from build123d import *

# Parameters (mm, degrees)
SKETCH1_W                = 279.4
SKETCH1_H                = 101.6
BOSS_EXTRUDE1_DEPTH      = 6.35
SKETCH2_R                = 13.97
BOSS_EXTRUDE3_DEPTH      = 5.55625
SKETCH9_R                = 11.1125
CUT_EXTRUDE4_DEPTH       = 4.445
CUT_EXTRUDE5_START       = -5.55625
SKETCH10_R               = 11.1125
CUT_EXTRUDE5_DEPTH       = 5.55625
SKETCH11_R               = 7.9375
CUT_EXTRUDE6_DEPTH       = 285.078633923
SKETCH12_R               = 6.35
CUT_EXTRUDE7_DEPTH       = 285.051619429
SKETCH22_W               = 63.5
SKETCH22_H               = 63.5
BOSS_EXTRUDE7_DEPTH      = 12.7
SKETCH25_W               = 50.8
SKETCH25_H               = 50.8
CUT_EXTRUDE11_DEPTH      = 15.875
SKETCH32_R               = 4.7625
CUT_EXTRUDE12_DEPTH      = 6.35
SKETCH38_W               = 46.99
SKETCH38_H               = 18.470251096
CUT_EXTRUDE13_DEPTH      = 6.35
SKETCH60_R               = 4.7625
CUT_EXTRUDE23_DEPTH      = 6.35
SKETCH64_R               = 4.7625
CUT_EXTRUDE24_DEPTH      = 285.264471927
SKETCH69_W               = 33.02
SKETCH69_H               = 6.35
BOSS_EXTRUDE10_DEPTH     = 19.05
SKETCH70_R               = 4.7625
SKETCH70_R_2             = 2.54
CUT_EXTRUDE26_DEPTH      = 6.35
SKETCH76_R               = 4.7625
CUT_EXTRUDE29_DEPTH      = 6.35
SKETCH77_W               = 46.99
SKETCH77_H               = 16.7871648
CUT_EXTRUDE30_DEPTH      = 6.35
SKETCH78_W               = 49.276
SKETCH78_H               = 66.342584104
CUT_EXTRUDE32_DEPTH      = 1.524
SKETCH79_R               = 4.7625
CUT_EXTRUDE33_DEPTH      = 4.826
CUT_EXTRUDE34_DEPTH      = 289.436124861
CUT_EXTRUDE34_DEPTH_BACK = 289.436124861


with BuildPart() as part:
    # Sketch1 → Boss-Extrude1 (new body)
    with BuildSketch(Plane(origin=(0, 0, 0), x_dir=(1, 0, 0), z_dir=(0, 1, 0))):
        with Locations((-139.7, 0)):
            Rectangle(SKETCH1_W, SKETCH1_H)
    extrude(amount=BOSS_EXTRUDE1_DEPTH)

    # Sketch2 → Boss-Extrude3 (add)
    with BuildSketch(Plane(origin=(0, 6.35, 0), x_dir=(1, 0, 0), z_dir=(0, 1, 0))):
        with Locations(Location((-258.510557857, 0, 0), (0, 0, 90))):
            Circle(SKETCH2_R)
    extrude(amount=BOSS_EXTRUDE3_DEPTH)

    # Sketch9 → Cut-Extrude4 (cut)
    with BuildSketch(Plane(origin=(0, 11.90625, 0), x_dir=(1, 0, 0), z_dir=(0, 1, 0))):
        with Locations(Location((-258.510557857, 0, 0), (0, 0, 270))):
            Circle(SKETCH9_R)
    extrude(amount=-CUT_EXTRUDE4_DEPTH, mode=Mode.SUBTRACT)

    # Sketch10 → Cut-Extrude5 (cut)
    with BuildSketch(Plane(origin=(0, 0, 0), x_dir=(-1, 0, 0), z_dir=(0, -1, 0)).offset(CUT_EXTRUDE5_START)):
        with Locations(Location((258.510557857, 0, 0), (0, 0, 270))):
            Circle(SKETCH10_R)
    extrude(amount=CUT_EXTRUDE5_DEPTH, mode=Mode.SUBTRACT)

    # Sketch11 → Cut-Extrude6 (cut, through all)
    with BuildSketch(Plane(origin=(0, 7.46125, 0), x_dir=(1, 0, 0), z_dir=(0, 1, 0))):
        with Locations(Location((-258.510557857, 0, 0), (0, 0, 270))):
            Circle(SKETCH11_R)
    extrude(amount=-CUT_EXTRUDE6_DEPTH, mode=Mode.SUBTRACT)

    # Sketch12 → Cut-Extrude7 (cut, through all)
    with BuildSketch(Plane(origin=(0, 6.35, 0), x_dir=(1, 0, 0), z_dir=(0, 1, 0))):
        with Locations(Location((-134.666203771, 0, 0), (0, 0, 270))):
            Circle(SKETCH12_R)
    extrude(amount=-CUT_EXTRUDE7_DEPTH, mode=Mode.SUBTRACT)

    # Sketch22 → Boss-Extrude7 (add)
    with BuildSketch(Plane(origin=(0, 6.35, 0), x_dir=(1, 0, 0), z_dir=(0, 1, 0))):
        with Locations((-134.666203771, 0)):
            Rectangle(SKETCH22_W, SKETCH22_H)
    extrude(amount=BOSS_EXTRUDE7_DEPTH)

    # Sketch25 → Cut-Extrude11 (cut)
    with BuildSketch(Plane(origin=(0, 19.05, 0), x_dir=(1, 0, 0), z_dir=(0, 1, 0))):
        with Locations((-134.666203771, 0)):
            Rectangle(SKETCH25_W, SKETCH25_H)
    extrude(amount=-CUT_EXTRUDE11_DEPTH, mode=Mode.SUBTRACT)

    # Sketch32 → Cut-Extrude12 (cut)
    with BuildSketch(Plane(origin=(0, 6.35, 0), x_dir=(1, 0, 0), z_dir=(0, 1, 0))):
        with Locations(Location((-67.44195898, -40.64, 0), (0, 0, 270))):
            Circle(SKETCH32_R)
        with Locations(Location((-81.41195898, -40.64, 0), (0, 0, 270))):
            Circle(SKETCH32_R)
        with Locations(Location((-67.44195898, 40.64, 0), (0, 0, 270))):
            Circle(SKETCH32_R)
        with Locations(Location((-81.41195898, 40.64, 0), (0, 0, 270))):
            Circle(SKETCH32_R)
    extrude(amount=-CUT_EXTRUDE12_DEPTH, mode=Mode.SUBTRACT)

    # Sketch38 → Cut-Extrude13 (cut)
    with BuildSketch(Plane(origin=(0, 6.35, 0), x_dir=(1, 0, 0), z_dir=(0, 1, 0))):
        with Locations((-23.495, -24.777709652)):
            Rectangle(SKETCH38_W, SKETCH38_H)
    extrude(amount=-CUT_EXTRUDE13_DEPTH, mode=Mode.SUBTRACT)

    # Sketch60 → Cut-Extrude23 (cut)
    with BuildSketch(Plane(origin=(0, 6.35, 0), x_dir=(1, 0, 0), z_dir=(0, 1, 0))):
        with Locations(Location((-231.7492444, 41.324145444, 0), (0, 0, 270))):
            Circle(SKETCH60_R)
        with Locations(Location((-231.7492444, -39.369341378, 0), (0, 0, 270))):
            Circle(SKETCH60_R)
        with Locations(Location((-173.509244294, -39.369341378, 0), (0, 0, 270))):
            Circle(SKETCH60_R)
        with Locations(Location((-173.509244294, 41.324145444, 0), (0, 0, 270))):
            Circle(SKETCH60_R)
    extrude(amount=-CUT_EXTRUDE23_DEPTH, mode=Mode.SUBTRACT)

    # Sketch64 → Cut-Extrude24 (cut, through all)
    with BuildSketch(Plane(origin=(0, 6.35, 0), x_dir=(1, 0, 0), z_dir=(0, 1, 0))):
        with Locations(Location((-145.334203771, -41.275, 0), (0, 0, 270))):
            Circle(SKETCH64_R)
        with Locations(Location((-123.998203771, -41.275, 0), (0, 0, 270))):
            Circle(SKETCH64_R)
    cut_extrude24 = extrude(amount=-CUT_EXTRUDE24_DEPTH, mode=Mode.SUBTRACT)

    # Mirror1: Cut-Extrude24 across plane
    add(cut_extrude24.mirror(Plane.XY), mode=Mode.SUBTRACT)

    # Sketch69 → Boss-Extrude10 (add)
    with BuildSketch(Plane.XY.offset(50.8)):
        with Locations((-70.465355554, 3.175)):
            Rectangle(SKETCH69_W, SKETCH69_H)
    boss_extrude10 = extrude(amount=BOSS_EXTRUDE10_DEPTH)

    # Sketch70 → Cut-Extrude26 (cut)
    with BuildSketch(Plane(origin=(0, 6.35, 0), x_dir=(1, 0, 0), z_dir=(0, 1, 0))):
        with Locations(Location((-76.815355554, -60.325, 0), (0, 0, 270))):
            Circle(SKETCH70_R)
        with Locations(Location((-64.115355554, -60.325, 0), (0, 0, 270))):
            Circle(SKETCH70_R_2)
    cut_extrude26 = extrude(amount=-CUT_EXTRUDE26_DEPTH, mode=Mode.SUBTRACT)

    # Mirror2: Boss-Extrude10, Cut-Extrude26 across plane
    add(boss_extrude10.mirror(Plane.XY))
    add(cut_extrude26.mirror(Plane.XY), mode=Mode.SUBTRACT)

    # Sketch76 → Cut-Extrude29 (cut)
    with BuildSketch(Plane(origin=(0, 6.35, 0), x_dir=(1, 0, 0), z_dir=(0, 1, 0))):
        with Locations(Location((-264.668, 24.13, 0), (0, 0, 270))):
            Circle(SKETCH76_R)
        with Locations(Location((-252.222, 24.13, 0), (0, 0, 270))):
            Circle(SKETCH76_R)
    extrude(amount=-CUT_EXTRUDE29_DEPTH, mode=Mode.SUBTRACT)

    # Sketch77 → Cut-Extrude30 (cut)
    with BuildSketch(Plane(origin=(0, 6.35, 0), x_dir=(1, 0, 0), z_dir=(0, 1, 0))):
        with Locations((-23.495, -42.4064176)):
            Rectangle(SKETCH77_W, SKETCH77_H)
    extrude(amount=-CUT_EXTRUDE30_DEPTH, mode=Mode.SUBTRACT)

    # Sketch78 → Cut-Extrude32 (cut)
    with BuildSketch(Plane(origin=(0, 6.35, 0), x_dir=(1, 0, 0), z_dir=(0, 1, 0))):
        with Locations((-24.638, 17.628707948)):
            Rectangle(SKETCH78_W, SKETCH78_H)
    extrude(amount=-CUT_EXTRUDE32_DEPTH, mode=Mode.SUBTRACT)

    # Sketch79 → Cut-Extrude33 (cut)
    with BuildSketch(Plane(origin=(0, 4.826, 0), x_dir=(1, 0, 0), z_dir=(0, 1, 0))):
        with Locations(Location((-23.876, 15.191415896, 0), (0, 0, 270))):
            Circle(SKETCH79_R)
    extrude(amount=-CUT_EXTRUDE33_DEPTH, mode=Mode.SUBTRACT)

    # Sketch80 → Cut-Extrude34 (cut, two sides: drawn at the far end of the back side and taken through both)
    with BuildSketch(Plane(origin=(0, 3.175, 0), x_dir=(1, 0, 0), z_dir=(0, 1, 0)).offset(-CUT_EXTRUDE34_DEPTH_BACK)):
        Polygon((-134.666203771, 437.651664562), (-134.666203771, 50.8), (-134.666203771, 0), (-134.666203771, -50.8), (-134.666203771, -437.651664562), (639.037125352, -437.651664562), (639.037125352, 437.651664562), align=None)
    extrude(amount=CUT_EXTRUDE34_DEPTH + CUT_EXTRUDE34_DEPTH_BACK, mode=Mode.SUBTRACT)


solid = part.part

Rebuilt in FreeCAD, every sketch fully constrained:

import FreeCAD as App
import Part
import Sketcher
from FreeCAD import Vector
Q = App.Units.Quantity


def add_polygon(sketch, points):
    """Adds a closed chain of lines whose ends are joined by coincident constraints."""
    first, n = sketch.GeometryCount, len(points)
    for a, b in zip(points, points[1:] + points[:1]):
        sketch.addGeometry(Part.LineSegment(App.Vector(*a, 0), App.Vector(*b, 0)), False)
    for i in range(n):
        sketch.addConstraint(Sketcher.Constraint("Coincident", first + i, 2, first + (i + 1) % n, 1))

doc = App.newDocument("Part")
params = doc.addObject("Spreadsheet::Sheet", "Params")
for row, (alias, value) in enumerate([
    ("sketch1_width", "11 in"),
    ("sketch1_height", "4 in"),
    ("pad1_length", "0.25 in"),
    ("sketch2_diameter", "1.1 in"),
    ("pad2_length", "0.21875 in"),
    ("sketch3_diameter", "0.875 in"),
    ("pocket1_length", "0.175 in"),
    ("sketch4_diameter", "0.875 in"),
    ("pocket2_length", "0.21875 in"),
    ("sketch5_diameter", "0.625 in"),
    ("sketch6_diameter", "0.5 in"),
    ("sketch7_width", "2.5 in"),
    ("pad3_length", "0.5 in"),
    ("sketch8_width", "2 in"),
    ("pocket5_length", "0.625 in"),
    ("sketch9_diameter", "0.375 in"),
    ("pocket6_length", "0.25 in"),
    ("sketch10_width", "1.85 in"),
    ("pocket7_length", "0.25 in"),
    ("sketch11_diameter", "0.375 in"),
    ("pocket8_length", "0.25 in"),
    ("sketch12_diameter", "0.375 in"),
    ("sketch13_width", "1.3 in"),
    ("sketch13_height", "0.25 in"),
    ("pad4_length", "0.75 in"),
    ("sketch14_diameter", "0.2 in"),
    ("sketch14_diameter2", "0.375 in"),
    ("pocket10_length", "0.25 in"),
    ("sketch15_diameter", "0.375 in"),
    ("pocket11_length", "0.25 in"),
    ("sketch16_width", "1.85 in"),
    ("pocket12_length", "0.25 in"),
    ("sketch17_width", "1.94 in"),
    ("pocket13_length", "0.06 in"),
    ("sketch18_diameter", "0.375 in"),
    ("pocket14_length", "0.19 in"),
], start=1):
    params.set(f"A{row}", alias)
    params.set(f"B{row}", "=" + value)
    params.setAlias(f"B{row}", alias)

body = doc.addObject("PartDesign::Body", "Body")

sketch1 = doc.addObject("Sketcher::SketchObject", "Sketch")
body.addObject(sketch1)
sketch1.AttachmentSupport = (doc.XZ_Plane, [""])
sketch1.MapMode = "FlatFace"
add_polygon(sketch1, [(-279, -51), (-279, 51), (0, 51), (0, -51)])
sketch1.addConstraint([
    Sketcher.Constraint("Vertical", 0),
    Sketcher.Constraint("Horizontal", 1),
    Sketcher.Constraint("Vertical", 2),
    Sketcher.Constraint("Horizontal", 3),
    Sketcher.Constraint("Symmetric", 1, 2, 2, 2, -1, 1),
    Sketcher.Constraint("DistanceX", 1, 1, 1, 2, Q("11 in")),
    Sketcher.Constraint("DistanceY", 0, 1, 0, 2, Q("4 in")),
])
sketch1.setExpression("Constraints[9]", "Params.sketch1_width")
sketch1.setExpression("Constraints[10]", "Params.sketch1_height")
pad1 = doc.addObject("PartDesign::Pad", "Pad")
body.addObject(pad1)
pad1.Profile = sketch1
pad1.setExpression("Length", "Params.pad1_length")
pad1.Reversed = True

sketch2 = doc.addObject("Sketcher::SketchObject", "Sketch001")
body.addObject(sketch2)
sketch2.AttachmentSupport = (doc.XZ_Plane, [""])
sketch2.MapMode = "FlatFace"
sketch2.AttachmentOffset = App.Placement(Vector(0, 0, -0.25 * 25.4), App.Rotation())
sketch2.addGeometry(Part.Circle(Vector(-259, 0, 0), Vector(0, 0, 1), 14), False)
sketch2.addConstraint([
    Sketcher.Constraint("PointOnObject", 0, 3, -1),
    Sketcher.Constraint("Diameter", 0, Q("1.1 in")),
    Sketcher.Constraint("DistanceX", 0, 3, -1, 1, 258.510558),
])
sketch2.setExpression("Constraints[1]", "Params.sketch2_diameter")
pad2 = doc.addObject("PartDesign::Pad", "Pad001")
body.addObject(pad2)
pad2.Profile = sketch2
pad2.setExpression("Length", "Params.pad2_length")
pad2.Reversed = True

sketch3 = doc.addObject("Sketcher::SketchObject", "Sketch002")
body.addObject(sketch3)
sketch3.AttachmentSupport = (doc.XZ_Plane, [""])
sketch3.MapMode = "FlatFace"
sketch3.AttachmentOffset = App.Placement(Vector(0, 0, -0.46875 * 25.4), App.Rotation())
sketch3.addGeometry(Part.Circle(Vector(-259, 0, 0), Vector(0, 0, 1), 11), False)
sketch3.addConstraint([
    Sketcher.Constraint("PointOnObject", 0, 3, -1),
    Sketcher.Constraint("Diameter", 0, Q("0.875 in")),
    Sketcher.Constraint("DistanceX", 0, 3, -1, 1, 258.510558),
])
sketch3.setExpression("Constraints[1]", "Params.sketch3_diameter")
pocket1 = doc.addObject("PartDesign::Pocket", "Pocket")
body.addObject(pocket1)
pocket1.Profile = sketch3
pocket1.setExpression("Length", "Params.pocket1_length")
pocket1.Reversed = True

sketch4 = doc.addObject("Sketcher::SketchObject", "Sketch003")
body.addObject(sketch4)
sketch4.AttachmentSupport = (doc.XZ_Plane, [""])
sketch4.MapMode = "FlatFace"
sketch4.AttachmentOffset = App.Placement(Vector(0, 0, -0.21875 * 25.4), App.Rotation())
sketch4.addGeometry(Part.Circle(Vector(-259, 0, 0), Vector(0, 0, 1), 11), False)
sketch4.addConstraint([
    Sketcher.Constraint("PointOnObject", 0, 3, -1),
    Sketcher.Constraint("Diameter", 0, Q("0.875 in")),
    Sketcher.Constraint("DistanceX", 0, 3, -1, 1, 258.510558),
])
sketch4.setExpression("Constraints[1]", "Params.sketch4_diameter")
pocket2 = doc.addObject("PartDesign::Pocket", "Pocket001")
body.addObject(pocket2)
pocket2.Profile = sketch4
pocket2.setExpression("Length", "Params.pocket2_length")
pocket2.Reversed = True

sketch5 = doc.addObject("Sketcher::SketchObject", "Sketch004")
body.addObject(sketch5)
sketch5.AttachmentSupport = (doc.XZ_Plane, [""])
sketch5.MapMode = "FlatFace"
sketch5.AttachmentOffset = App.Placement(Vector(0, 0, -7.46125), App.Rotation())
sketch5.addGeometry(Part.Circle(Vector(-259, 0, 0), Vector(0, 0, 1), 8), False)
sketch5.addConstraint([
    Sketcher.Constraint("PointOnObject", 0, 3, -1),
    Sketcher.Constraint("Diameter", 0, Q("0.625 in")),
    Sketcher.Constraint("DistanceX", 0, 3, -1, 1, 258.510558),
])
sketch5.setExpression("Constraints[1]", "Params.sketch5_diameter")
pocket3 = doc.addObject("PartDesign::Pocket", "Pocket002")
body.addObject(pocket3)
pocket3.Profile = sketch5
pocket3.Type = "ThroughAll"
pocket3.Reversed = True

sketch6 = doc.addObject("Sketcher::SketchObject", "Sketch005")
body.addObject(sketch6)
sketch6.AttachmentSupport = (doc.XZ_Plane, [""])
sketch6.MapMode = "FlatFace"
sketch6.AttachmentOffset = App.Placement(Vector(0, 0, -0.25 * 25.4), App.Rotation())
sketch6.addGeometry(Part.Circle(Vector(-135, 0, 0), Vector(0, 0, 1), 6), False)
sketch6.addConstraint([
    Sketcher.Constraint("PointOnObject", 0, 3, -1),
    Sketcher.Constraint("Diameter", 0, Q("0.5 in")),
    Sketcher.Constraint("DistanceX", 0, 3, -1, 1, 134.666204),
])
sketch6.setExpression("Constraints[1]", "Params.sketch6_diameter")
pocket4 = doc.addObject("PartDesign::Pocket", "Pocket003")
body.addObject(pocket4)
pocket4.Profile = sketch6
pocket4.Type = "ThroughAll"
pocket4.Reversed = True

sketch7 = doc.addObject("Sketcher::SketchObject", "Sketch006")
body.addObject(sketch7)
sketch7.AttachmentSupport = (doc.XZ_Plane, [""])
sketch7.MapMode = "FlatFace"
sketch7.AttachmentOffset = App.Placement(Vector(0, 0, -0.25 * 25.4), App.Rotation())
add_polygon(sketch7, [(-166, -32), (-166, 32), (-103, 32), (-103, -32)])
sketch7.addConstraint([
    Sketcher.Constraint("Vertical", 0),
    Sketcher.Constraint("Horizontal", 1),
    Sketcher.Constraint("Vertical", 2),
    Sketcher.Constraint("Horizontal", 3),
    Sketcher.Constraint("Equal", 3, 0),
    Sketcher.Constraint("DistanceX", 1, 1, 1, 2, Q("2.5 in")),
    Sketcher.Constraint("DistanceY", -1, 1, 0, 2, Q("1.25 in")),
    Sketcher.Constraint("DistanceX", 0, 2, -1, 1, 166.416204),
])
sketch7.setExpression("Constraints[9]", "Params.sketch7_width")
pad3 = doc.addObject("PartDesign::Pad", "Pad002")
body.addObject(pad3)
pad3.Profile = sketch7
pad3.setExpression("Length", "Params.pad3_length")
pad3.Reversed = True

sketch8 = doc.addObject("Sketcher::SketchObject", "Sketch007")
body.addObject(sketch8)
sketch8.AttachmentSupport = (doc.XZ_Plane, [""])
sketch8.MapMode = "FlatFace"
sketch8.AttachmentOffset = App.Placement(Vector(0, 0, -0.75 * 25.4), App.Rotation())
add_polygon(sketch8, [(-160, -25), (-160, 25), (-109, 25), (-109, -25)])
sketch8.addConstraint([
    Sketcher.Constraint("Vertical", 0),
    Sketcher.Constraint("Horizontal", 1),
    Sketcher.Constraint("Vertical", 2),
    Sketcher.Constraint("Horizontal", 3),
    Sketcher.Constraint("Equal", 3, 0),
    Sketcher.Constraint("DistanceX", 1, 1, 1, 2, Q("2 in")),
    Sketcher.Constraint("DistanceY", -1, 1, 0, 2, Q("1 in")),
    Sketcher.Constraint("DistanceX", 0, 2, -1, 1, 160.066204),
])
sketch8.setExpression("Constraints[9]", "Params.sketch8_width")
pocket5 = doc.addObject("PartDesign::Pocket", "Pocket004")
body.addObject(pocket5)
pocket5.Profile = sketch8
pocket5.setExpression("Length", "Params.pocket5_length")
pocket5.Reversed = True

sketch9 = doc.addObject("Sketcher::SketchObject", "Sketch008")
body.addObject(sketch9)
sketch9.AttachmentSupport = (doc.XZ_Plane, [""])
sketch9.MapMode = "FlatFace"
sketch9.AttachmentOffset = App.Placement(Vector(0, 0, -0.25 * 25.4), App.Rotation())
sketch9.addGeometry([
    Part.Circle(Vector(-67.4, 40.6, 0), Vector(0, 0, 1), 4.8),
    Part.Circle(Vector(-81.4, 40.6, 0), Vector(0, 0, 1), 4.8),
    Part.Circle(Vector(-67.4, -40.6, 0), Vector(0, 0, 1), 4.8),
    Part.Circle(Vector(-81.4, -40.6, 0), Vector(0, 0, 1), 4.8),
], False)
sketch9.addConstraint([
    Sketcher.Constraint("Equal", 0, 1),
    Sketcher.Constraint("Equal", 1, 2),
    Sketcher.Constraint("Equal", 2, 3),
    Sketcher.Constraint("Symmetric", 0, 3, 2, 3, -1),
    Sketcher.Constraint("Symmetric", 1, 3, 3, 3, -1),
    Sketcher.Constraint("Horizontal", 0, 3, 1, 3),
    Sketcher.Constraint("Diameter", 0, Q("0.375 in")),
    Sketcher.Constraint("DistanceY", -1, 1, 0, 3, Q("1.6 in")),
    Sketcher.Constraint("DistanceX", 1, 3, 0, 3, Q("0.55 in")),
    Sketcher.Constraint("DistanceX", 0, 3, -1, 1, 67.441959),
])
sketch9.setExpression("Constraints[6]", "Params.sketch9_diameter")
pocket6 = doc.addObject("PartDesign::Pocket", "Pocket005")
body.addObject(pocket6)
pocket6.Profile = sketch9
pocket6.setExpression("Length", "Params.pocket6_length")
pocket6.Reversed = True

sketch10 = doc.addObject("Sketcher::SketchObject", "Sketch009")
body.addObject(sketch10)
sketch10.AttachmentSupport = (doc.XZ_Plane, [""])
sketch10.MapMode = "FlatFace"
sketch10.AttachmentOffset = App.Placement(Vector(0, 0, -0.25 * 25.4), App.Rotation())
add_polygon(sketch10, [(-47, 16), (-47, 34), (0, 34), (0, 16)])
sketch10.addConstraint([
    Sketcher.Constraint("Vertical", 0),
    Sketcher.Constraint("Horizontal", 1),
    Sketcher.Constraint("Vertical", 2),
    Sketcher.Constraint("Horizontal", 3),
    Sketcher.Constraint("PointOnObject", 1, 2, -2),
    Sketcher.Constraint("DistanceX", 1, 1, 1, 2, Q("1.85 in")),
    Sketcher.Constraint("DistanceY", 0, 1, 0, 2, 18.470251),
    Sketcher.Constraint("DistanceY", -1, 1, 0, 2, 34.012835),
])
sketch10.setExpression("Constraints[9]", "Params.sketch10_width")
pocket7 = doc.addObject("PartDesign::Pocket", "Pocket006")
body.addObject(pocket7)
pocket7.Profile = sketch10
pocket7.setExpression("Length", "Params.pocket7_length")
pocket7.Reversed = True

sketch11 = doc.addObject("Sketcher::SketchObject", "Sketch010")
body.addObject(sketch11)
sketch11.AttachmentSupport = (doc.XZ_Plane, [""])
sketch11.MapMode = "FlatFace"
sketch11.AttachmentOffset = App.Placement(Vector(0, 0, -0.25 * 25.4), App.Rotation())
sketch11.addGeometry([
    Part.Circle(Vector(-231.7, -41.3, 0), Vector(0, 0, 1), 4.8),
    Part.Circle(Vector(-231.7, 39.4, 0), Vector(0, 0, 1), 4.8),
    Part.Circle(Vector(-173.5, 39.4, 0), Vector(0, 0, 1), 4.8),
    Part.Circle(Vector(-173.5, -41.3, 0), Vector(0, 0, 1), 4.8),
], False)
sketch11.addConstraint([
    Sketcher.Constraint("Equal", 0, 1),
    Sketcher.Constraint("Equal", 1, 2),
    Sketcher.Constraint("Equal", 2, 3),
    Sketcher.Constraint("Horizontal", 1, 3, 2, 3),
    Sketcher.Constraint("Horizontal", 0, 3, 3, 3),
    Sketcher.Constraint("Vertical", 0, 3, 1, 3),
    Sketcher.Constraint("Vertical", 2, 3, 3, 3),
    Sketcher.Constraint("Diameter", 0, Q("0.375 in")),
    Sketcher.Constraint("DistanceX", 1, 3, 2, 3, 58.24),
    Sketcher.Constraint("DistanceY", -1, 1, 1, 3, 39.369341),
    Sketcher.Constraint("DistanceX", 0, 3, -1, 1, 231.749244),
    Sketcher.Constraint("DistanceY", 0, 3, -1, 1, 41.324145),
])
sketch11.setExpression("Constraints[7]", "Params.sketch11_diameter")
pocket8 = doc.addObject("PartDesign::Pocket", "Pocket007")
body.addObject(pocket8)
pocket8.Profile = sketch11
pocket8.setExpression("Length", "Params.pocket8_length")
pocket8.Reversed = True

sketch12 = doc.addObject("Sketcher::SketchObject", "Sketch011")
body.addObject(sketch12)
sketch12.AttachmentSupport = (doc.XZ_Plane, [""])
sketch12.MapMode = "FlatFace"
sketch12.AttachmentOffset = App.Placement(Vector(0, 0, -0.25 * 25.4), App.Rotation())
sketch12.addGeometry([
    Part.Circle(Vector(-145.3, 41.3, 0), Vector(0, 0, 1), 4.8),
    Part.Circle(Vector(-124, 41.3, 0), Vector(0, 0, 1), 4.8),
], False)
sketch12.addConstraint([
    Sketcher.Constraint("Equal", 0, 1),
    Sketcher.Constraint("Horizontal", 0, 3, 1, 3),
    Sketcher.Constraint("Diameter", 0, Q("0.375 in")),
    Sketcher.Constraint("DistanceX", 0, 3, 1, 3, Q("0.84 in")),
    Sketcher.Constraint("DistanceY", -1, 1, 0, 3, Q("1.625 in")),
    Sketcher.Constraint("DistanceX", 0, 3, -1, 1, 145.334204),
])
sketch12.setExpression("Constraints[2]", "Params.sketch12_diameter")
pocket9 = doc.addObject("PartDesign::Pocket", "Pocket008")
body.addObject(pocket9)
pocket9.Profile = sketch12
pocket9.Type = "ThroughAll"
pocket9.Reversed = True
doc.recompute()

mirrored = doc.addObject("PartDesign::Mirrored", "Mirrored")
body.addObject(mirrored)
mirrored.Originals = [pocket9]
mirrored.MirrorPlane = (doc.XY_Plane, [""])
body.Tip = mirrored

sketch13 = doc.addObject("Sketcher::SketchObject", "Sketch012")
body.addObject(sketch13)
sketch13.AttachmentSupport = (doc.XY_Plane, [""])
sketch13.MapMode = "FlatFace"
sketch13.AttachmentOffset = App.Placement(Vector(0, 0, 2 * 25.4), App.Rotation())
add_polygon(sketch13, [(-87, 6), (-87, 0), (-54, 0), (-54, 6)])
sketch13.addConstraint([
    Sketcher.Constraint("Vertical", 0),
    Sketcher.Constraint("Horizontal", 1),
    Sketcher.Constraint("Vertical", 2),
    Sketcher.Constraint("Horizontal", 3),
    Sketcher.Constraint("PointOnObject", 0, 2, -1),
    Sketcher.Constraint("DistanceX", 1, 1, 1, 2, Q("1.3 in")),
    Sketcher.Constraint("DistanceY", 0, 2, 0, 1, Q("0.25 in")),
    Sketcher.Constraint("DistanceX", 0, 2, -1, 1, 86.975356),
])
sketch13.setExpression("Constraints[9]", "Params.sketch13_width")
sketch13.setExpression("Constraints[10]", "Params.sketch13_height")
pad4 = doc.addObject("PartDesign::Pad", "Pad003")
body.addObject(pad4)
pad4.Profile = sketch13
pad4.setExpression("Length", "Params.pad4_length")

sketch14 = doc.addObject("Sketcher::SketchObject", "Sketch013")
body.addObject(sketch14)
sketch14.AttachmentSupport = (doc.XZ_Plane, [""])
sketch14.MapMode = "FlatFace"
sketch14.AttachmentOffset = App.Placement(Vector(0, 0, -0.25 * 25.4), App.Rotation())
sketch14.addGeometry([
    Part.Circle(Vector(-76.8, 60.3, 0), Vector(0, 0, 1), 4.8),
    Part.Circle(Vector(-64.1, 60.3, 0), Vector(0, 0, 1), 2.5),
], False)
sketch14.addConstraint([
    Sketcher.Constraint("Horizontal", 0, 3, 1, 3),
    Sketcher.Constraint("Diameter", 1, Q("0.2 in")),
    Sketcher.Constraint("Diameter", 0, Q("0.375 in")),
    Sketcher.Constraint("DistanceX", 0, 3, 1, 3, Q("0.5 in")),
    Sketcher.Constraint("DistanceY", -1, 1, 0, 3, Q("2.375 in")),
    Sketcher.Constraint("DistanceX", 0, 3, -1, 1, 76.815356),
])
sketch14.setExpression("Constraints[1]", "Params.sketch14_diameter")
sketch14.setExpression("Constraints[2]", "Params.sketch14_diameter2")
pocket10 = doc.addObject("PartDesign::Pocket", "Pocket009")
body.addObject(pocket10)
pocket10.Profile = sketch14
pocket10.setExpression("Length", "Params.pocket10_length")
pocket10.Reversed = True
doc.recompute()

mirrored2 = doc.addObject("PartDesign::Mirrored", "Mirrored001")
body.addObject(mirrored2)
mirrored2.Originals = [pad4, pocket10]
mirrored2.MirrorPlane = (doc.XY_Plane, [""])
body.Tip = mirrored2

sketch15 = doc.addObject("Sketcher::SketchObject", "Sketch014")
body.addObject(sketch15)
sketch15.AttachmentSupport = (doc.XZ_Plane, [""])
sketch15.MapMode = "FlatFace"
sketch15.AttachmentOffset = App.Placement(Vector(0, 0, -0.25 * 25.4), App.Rotation())
sketch15.addGeometry([
    Part.Circle(Vector(-264.7, -24.1, 0), Vector(0, 0, 1), 4.8),
    Part.Circle(Vector(-252.2, -24.1, 0), Vector(0, 0, 1), 4.8),
], False)
sketch15.addConstraint([
    Sketcher.Constraint("Equal", 0, 1),
    Sketcher.Constraint("Horizontal", 0, 3, 1, 3),
    Sketcher.Constraint("Diameter", 0, Q("0.375 in")),
    Sketcher.Constraint("DistanceX", 0, 3, -1, 1, Q("10.42 in")),
    Sketcher.Constraint("DistanceY", 0, 3, -1, 1, Q("0.95 in")),
    Sketcher.Constraint("DistanceX", 1, 3, -1, 1, Q("9.93 in")),
])
sketch15.setExpression("Constraints[2]", "Params.sketch15_diameter")
pocket11 = doc.addObject("PartDesign::Pocket", "Pocket010")
body.addObject(pocket11)
pocket11.Profile = sketch15
pocket11.setExpression("Length", "Params.pocket11_length")
pocket11.Reversed = True

sketch16 = doc.addObject("Sketcher::SketchObject", "Sketch015")
body.addObject(sketch16)
sketch16.AttachmentSupport = (doc.XZ_Plane, [""])
sketch16.MapMode = "FlatFace"
sketch16.AttachmentOffset = App.Placement(Vector(0, 0, -0.25 * 25.4), App.Rotation())
add_polygon(sketch16, [(-47, 34), (-47, 51), (0, 51), (0, 34)])
sketch16.addConstraint([
    Sketcher.Constraint("Vertical", 0),
    Sketcher.Constraint("Horizontal", 1),
    Sketcher.Constraint("Vertical", 2),
    Sketcher.Constraint("Horizontal", 3),
    Sketcher.Constraint("PointOnObject", 1, 2, -2),
    Sketcher.Constraint("DistanceY", -1, 1, 0, 2, Q("2 in")),
    Sketcher.Constraint("DistanceX", 1, 1, 1, 2, Q("1.85 in")),
    Sketcher.Constraint("DistanceY", 0, 1, 0, 2, 16.787165),
])
sketch16.setExpression("Constraints[10]", "Params.sketch16_width")
pocket12 = doc.addObject("PartDesign::Pocket", "Pocket011")
body.addObject(pocket12)
pocket12.Profile = sketch16
pocket12.setExpression("Length", "Params.pocket12_length")
pocket12.Reversed = True

sketch17 = doc.addObject("Sketcher::SketchObject", "Sketch016")
body.addObject(sketch17)
sketch17.AttachmentSupport = (doc.XZ_Plane, [""])
sketch17.MapMode = "FlatFace"
sketch17.AttachmentOffset = App.Placement(Vector(0, 0, -0.25 * 25.4), App.Rotation())
add_polygon(sketch17, [(-49, -51), (-49, 16), (0, 16), (0, -51)])
sketch17.addConstraint([
    Sketcher.Constraint("Vertical", 0),
    Sketcher.Constraint("Horizontal", 1),
    Sketcher.Constraint("Vertical", 2),
    Sketcher.Constraint("Horizontal", 3),
    Sketcher.Constraint("PointOnObject", 1, 2, -2),
    Sketcher.Constraint("DistanceY", 2, 2, -1, 1, Q("2 in")),
    Sketcher.Constraint("DistanceX", 1, 1, 1, 2, Q("1.94 in")),
    Sketcher.Constraint("DistanceY", 0, 1, 0, 2, 66.342584),
])
sketch17.setExpression("Constraints[10]", "Params.sketch17_width")
pocket13 = doc.addObject("PartDesign::Pocket", "Pocket012")
body.addObject(pocket13)
pocket13.Profile = sketch17
pocket13.setExpression("Length", "Params.pocket13_length")
pocket13.Reversed = True

sketch18 = doc.addObject("Sketcher::SketchObject", "Sketch017")
body.addObject(sketch18)
sketch18.AttachmentSupport = (doc.XZ_Plane, [""])
sketch18.MapMode = "FlatFace"
sketch18.AttachmentOffset = App.Placement(Vector(0, 0, -0.19 * 25.4), App.Rotation())
sketch18.addGeometry(Part.Circle(Vector(-23.9, -15.2, 0), Vector(0, 0, 1), 4.8), False)
sketch18.addConstraint([
    Sketcher.Constraint("Diameter", 0, Q("0.375 in")),
    Sketcher.Constraint("DistanceX", 0, 3, -1, 1, Q("0.94 in")),
    Sketcher.Constraint("DistanceY", 0, 3, -1, 1, 15.191416),
])
sketch18.setExpression("Constraints[0]", "Params.sketch18_diameter")
pocket14 = doc.addObject("PartDesign::Pocket", "Pocket013")
body.addObject(pocket14)
pocket14.Profile = sketch18
pocket14.setExpression("Length", "Params.pocket14_length")
pocket14.Reversed = True

sketch19 = doc.addObject("Sketcher::SketchObject", "Sketch018")
body.addObject(sketch19)
sketch19.AttachmentSupport = (doc.XZ_Plane, [""])
sketch19.MapMode = "FlatFace"
sketch19.AttachmentOffset = App.Placement(Vector(0, 0, -0.125 * 25.4), App.Rotation())
add_polygon(sketch19, [(-135, -438), (-135, 438), (639, 438), (639, -438)])
sketch19.addConstraint([
    Sketcher.Constraint("Vertical", 0),
    Sketcher.Constraint("Horizontal", 1),
    Sketcher.Constraint("Vertical", 2),
    Sketcher.Constraint("Horizontal", 3),
    Sketcher.Constraint("DistanceX", 1, 1, 1, 2, 773.703329),
    Sketcher.Constraint("DistanceY", 0, 1, 0, 2, 875.303329),
    Sketcher.Constraint("DistanceX", 0, 2, -1, 1, 134.666204),
    Sketcher.Constraint("DistanceY", -1, 1, 0, 2, 437.651665),
])
pocket15 = doc.addObject("PartDesign::Pocket", "Pocket014")
body.addObject(pocket15)
pocket15.Profile = sketch19
pocket15.Type = "ThroughAll"
pocket15.Midplane = True

doc.recompute()
